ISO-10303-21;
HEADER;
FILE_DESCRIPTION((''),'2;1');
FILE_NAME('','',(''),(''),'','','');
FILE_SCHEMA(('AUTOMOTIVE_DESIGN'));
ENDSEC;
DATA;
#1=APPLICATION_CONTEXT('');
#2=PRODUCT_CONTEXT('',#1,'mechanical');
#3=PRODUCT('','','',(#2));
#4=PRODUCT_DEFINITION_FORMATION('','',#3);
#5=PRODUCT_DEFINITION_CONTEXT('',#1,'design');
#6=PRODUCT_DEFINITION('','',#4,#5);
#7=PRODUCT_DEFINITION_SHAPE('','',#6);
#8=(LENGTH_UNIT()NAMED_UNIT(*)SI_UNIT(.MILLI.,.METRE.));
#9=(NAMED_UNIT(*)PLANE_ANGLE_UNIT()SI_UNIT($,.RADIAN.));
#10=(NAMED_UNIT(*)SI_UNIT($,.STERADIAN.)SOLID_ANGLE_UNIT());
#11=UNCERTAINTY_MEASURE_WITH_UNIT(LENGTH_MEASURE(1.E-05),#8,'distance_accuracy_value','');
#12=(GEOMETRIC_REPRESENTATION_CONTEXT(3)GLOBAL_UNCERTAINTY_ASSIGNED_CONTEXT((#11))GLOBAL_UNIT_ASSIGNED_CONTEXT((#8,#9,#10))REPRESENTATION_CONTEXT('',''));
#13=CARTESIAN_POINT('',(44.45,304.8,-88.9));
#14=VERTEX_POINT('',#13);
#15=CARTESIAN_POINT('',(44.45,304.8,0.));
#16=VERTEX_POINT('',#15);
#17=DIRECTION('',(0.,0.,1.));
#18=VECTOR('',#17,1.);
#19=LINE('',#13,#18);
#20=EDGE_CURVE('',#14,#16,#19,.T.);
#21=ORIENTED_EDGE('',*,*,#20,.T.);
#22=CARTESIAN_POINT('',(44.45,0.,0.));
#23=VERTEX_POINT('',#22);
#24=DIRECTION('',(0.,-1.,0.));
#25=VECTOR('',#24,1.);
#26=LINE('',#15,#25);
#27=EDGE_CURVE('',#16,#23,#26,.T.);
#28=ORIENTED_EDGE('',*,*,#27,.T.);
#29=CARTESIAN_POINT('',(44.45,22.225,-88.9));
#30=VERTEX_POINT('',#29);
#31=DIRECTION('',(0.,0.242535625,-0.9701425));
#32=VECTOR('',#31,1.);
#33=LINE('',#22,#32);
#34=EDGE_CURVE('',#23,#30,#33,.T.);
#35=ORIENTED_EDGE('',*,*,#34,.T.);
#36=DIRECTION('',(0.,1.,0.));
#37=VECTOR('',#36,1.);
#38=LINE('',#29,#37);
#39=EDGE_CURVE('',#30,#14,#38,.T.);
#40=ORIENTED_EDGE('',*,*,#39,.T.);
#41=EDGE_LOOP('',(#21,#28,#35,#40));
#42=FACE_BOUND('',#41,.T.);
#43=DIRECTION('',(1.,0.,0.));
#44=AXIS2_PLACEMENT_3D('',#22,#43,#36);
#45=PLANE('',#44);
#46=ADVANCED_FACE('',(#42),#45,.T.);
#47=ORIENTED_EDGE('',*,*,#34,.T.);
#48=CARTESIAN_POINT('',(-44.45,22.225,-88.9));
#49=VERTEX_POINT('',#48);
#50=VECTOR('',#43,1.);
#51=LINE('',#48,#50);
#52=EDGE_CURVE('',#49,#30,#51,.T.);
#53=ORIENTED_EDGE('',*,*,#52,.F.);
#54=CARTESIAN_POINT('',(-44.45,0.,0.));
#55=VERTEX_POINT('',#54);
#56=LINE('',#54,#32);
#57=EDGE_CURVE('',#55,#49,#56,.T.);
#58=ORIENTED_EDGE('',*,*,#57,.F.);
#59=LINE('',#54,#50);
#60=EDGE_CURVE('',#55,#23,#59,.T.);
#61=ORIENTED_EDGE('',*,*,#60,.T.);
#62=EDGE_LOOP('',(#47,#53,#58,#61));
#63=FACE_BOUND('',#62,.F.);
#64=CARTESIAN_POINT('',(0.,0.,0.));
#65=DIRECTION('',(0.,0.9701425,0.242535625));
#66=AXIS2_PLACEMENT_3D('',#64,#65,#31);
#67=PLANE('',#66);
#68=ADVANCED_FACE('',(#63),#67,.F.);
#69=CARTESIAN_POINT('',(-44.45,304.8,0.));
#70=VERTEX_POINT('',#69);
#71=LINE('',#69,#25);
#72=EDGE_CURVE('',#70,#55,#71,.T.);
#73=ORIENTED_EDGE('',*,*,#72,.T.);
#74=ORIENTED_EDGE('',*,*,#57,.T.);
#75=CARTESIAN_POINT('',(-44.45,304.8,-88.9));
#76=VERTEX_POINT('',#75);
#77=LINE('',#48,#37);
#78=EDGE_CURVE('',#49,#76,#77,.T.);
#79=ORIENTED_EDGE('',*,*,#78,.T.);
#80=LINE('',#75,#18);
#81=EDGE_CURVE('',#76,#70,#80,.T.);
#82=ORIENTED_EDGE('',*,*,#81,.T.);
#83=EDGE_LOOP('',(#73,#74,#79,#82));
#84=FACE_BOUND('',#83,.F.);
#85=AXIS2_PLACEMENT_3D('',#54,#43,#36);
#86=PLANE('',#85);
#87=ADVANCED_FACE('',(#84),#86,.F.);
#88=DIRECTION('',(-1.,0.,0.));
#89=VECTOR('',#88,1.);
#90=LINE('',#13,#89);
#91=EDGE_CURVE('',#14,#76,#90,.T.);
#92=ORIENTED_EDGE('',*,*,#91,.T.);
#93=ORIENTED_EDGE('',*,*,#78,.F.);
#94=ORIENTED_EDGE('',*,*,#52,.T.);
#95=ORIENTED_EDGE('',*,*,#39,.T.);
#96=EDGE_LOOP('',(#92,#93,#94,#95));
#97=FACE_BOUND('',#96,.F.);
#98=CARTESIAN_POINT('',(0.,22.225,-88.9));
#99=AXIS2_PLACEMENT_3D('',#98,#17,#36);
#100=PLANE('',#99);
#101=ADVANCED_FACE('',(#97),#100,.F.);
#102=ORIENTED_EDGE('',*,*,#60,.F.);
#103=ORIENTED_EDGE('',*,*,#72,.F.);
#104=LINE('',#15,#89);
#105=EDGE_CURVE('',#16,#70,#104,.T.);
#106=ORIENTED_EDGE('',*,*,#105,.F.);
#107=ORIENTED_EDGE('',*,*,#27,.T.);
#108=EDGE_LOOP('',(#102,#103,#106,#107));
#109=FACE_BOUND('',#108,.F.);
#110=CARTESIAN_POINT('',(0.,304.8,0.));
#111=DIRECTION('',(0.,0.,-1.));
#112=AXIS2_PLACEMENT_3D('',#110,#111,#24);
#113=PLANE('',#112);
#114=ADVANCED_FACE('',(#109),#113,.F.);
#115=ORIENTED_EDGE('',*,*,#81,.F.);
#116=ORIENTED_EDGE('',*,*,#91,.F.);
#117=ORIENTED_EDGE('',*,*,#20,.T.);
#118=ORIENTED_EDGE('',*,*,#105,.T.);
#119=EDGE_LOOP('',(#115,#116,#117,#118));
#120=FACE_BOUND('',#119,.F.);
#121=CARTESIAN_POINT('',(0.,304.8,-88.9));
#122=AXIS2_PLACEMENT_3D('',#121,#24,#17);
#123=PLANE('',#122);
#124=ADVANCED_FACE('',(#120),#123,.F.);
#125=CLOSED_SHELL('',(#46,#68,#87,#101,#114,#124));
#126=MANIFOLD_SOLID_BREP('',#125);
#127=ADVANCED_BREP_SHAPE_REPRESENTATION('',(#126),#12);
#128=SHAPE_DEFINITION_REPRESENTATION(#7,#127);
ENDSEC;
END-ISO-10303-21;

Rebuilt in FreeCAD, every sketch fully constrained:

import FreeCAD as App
import Part
import Sketcher
Q = App.Units.Quantity

doc = App.newDocument("Part")
body = doc.addObject("PartDesign::Body", "Body")

sketch1 = body.newObject("Sketcher::SketchObject", "Sketch")
sketch1.AttachmentSupport = (doc.getObject("YZ_Plane"), [""])
sketch1.MapMode = "FlatFace"
sketch1.addGeometry([
    Part.LineSegment(App.Vector(305, 0, 0), App.Vector(0, 0, 0)),
    Part.LineSegment(App.Vector(0, 0, 0), App.Vector(22, -89, 0)),
    Part.LineSegment(App.Vector(22, -89, 0), App.Vector(305, -89, 0)),
    Part.LineSegment(App.Vector(305, -89, 0), App.Vector(305, 0, 0)),
], False)
sketch1.addConstraint([
    Sketcher.Constraint("Coincident", 0, 2, 1, 1),
    Sketcher.Constraint("Coincident", 1, 2, 2, 1),
    Sketcher.Constraint("Coincident", 2, 2, 3, 1),
    Sketcher.Constraint("Coincident", 3, 2, 0, 1),
    Sketcher.Constraint("Horizontal", 0),
    Sketcher.Constraint("Horizontal", 2),
    Sketcher.Constraint("Vertical", 3),
    Sketcher.Constraint("Coincident", 0, 2, -1, 1),
    Sketcher.Constraint("DistanceX", 0, 2, 0, 1, Q("12 in")),
    Sketcher.Constraint("DistanceY", 3, 1, 3, 2, Q("3.5 in")),
    Sketcher.Constraint("DistanceX", 2, 1, 2, 2, Q("11.125 in")),
])
pad1 = body.newObject("PartDesign::Pad", "Pad")
pad1.Profile = sketch1
pad1.Length = Q("3.5 in")
pad1.Midplane = True

doc.recompute()
